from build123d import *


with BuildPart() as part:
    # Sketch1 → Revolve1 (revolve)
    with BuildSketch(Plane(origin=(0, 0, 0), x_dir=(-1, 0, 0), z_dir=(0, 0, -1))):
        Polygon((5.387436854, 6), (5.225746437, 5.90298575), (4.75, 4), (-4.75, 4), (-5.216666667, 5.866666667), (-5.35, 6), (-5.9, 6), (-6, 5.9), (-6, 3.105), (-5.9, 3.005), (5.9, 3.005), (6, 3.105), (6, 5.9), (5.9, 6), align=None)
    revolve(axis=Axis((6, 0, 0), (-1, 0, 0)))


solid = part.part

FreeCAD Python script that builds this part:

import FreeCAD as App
import Part
import Sketcher
from FreeCAD import Vector


def add_polygon(sketch, points):
    """Adds a closed chain of lines whose ends are joined by coincident constraints."""
    first, n = sketch.GeometryCount, len(points)
    for a, b in zip(points, points[1:] + points[:1]):
        sketch.addGeometry(Part.LineSegment(App.Vector(*a, 0), App.Vector(*b, 0)), False)
    for i in range(n):
        sketch.addConstraint(Sketcher.Constraint("Coincident", first + i, 2, first + (i + 1) % n, 1))

doc = App.newDocument("Part")
body = doc.addObject("PartDesign::Body", "Body")

# Sketch on XY plane
sketch1 = body.newObject("Sketcher::SketchObject", "Sketch")
sketch1.AttachmentSupport = (doc.getObject("XY_Plane"), [""])
sketch1.MapMode = "FlatFace"
add_polygon(sketch1, [(-5.39, 6), (-5.23, 5.9), (-4.75, 4), (4.75, 4), (5.22, 5.87), (5.35, 6), (5.9, 6), (6, 5.9), (6, 3.1), (5.9, 3), (-5.9, 3), (-6, 3.1), (-6, 5.9), (-5.9, 6)])  # lines 0-13
sketch1.addConstraint([
    Sketcher.Constraint("Horizontal", 2),
    Sketcher.Constraint("Horizontal", 5),
    Sketcher.Constraint("Vertical", 7),
    Sketcher.Constraint("Horizontal", 9),
    Sketcher.Constraint("Vertical", 11),
    Sketcher.Constraint("Horizontal", 13),
    Sketcher.Constraint("Symmetric", 7, 2, 10, 2, -2),
    Sketcher.Constraint("Symmetric", 5, 2, 12, 2, -2),
    Sketcher.Constraint("Perpendicular", 4, 6),
    Sketcher.Constraint("Perpendicular", 6, 8),
    Sketcher.Constraint("Perpendicular", 8, 10),
    Sketcher.Constraint("Perpendicular", 10, 12),
    Sketcher.Constraint("Horizontal", 6, 2, 11, 2),
    Sketcher.Constraint("Vertical", 5, 2, 8, 2),
    Sketcher.Constraint("Equal", 0, 4),
    Sketcher.Constraint("DistanceX", 2, 1, 2, 2, 9.5),
    Sketcher.Constraint("DistanceX", 9, 2, 9, 1, 11.8),
    Sketcher.Constraint("DistanceY", -1, 1, 1, 2, 4.0),
    Sketcher.Constraint("DistanceY", -1, 1, 4, 2, 6.0),
    Sketcher.Constraint("DistanceX", -1, 1, 6, 2, 6.0),
    Sketcher.Constraint("DistanceX", 5, 1, 5, 2, 0.55),
    Sketcher.Constraint("DistanceX", 2, 2, 4, 2, 0.6),
    Sketcher.Constraint("DistanceY", 7, 2, 7, 1, 2.795),
    Sketcher.Constraint("Distance", 0, 0.188562),
    Sketcher.Constraint("DistanceX", 13, 1, 13, 2, 0.512563),
    Sketcher.Constraint("DistanceY", 3, 2, 0, 2, 0.036319),
])
revolution = body.newObject("PartDesign::Revolution", "Revolution")
revolution.Profile = sketch1
revolution.ReferenceAxis = (sketch1, ["H_Axis"])
revolution.Angle = 360

doc.recompute()
